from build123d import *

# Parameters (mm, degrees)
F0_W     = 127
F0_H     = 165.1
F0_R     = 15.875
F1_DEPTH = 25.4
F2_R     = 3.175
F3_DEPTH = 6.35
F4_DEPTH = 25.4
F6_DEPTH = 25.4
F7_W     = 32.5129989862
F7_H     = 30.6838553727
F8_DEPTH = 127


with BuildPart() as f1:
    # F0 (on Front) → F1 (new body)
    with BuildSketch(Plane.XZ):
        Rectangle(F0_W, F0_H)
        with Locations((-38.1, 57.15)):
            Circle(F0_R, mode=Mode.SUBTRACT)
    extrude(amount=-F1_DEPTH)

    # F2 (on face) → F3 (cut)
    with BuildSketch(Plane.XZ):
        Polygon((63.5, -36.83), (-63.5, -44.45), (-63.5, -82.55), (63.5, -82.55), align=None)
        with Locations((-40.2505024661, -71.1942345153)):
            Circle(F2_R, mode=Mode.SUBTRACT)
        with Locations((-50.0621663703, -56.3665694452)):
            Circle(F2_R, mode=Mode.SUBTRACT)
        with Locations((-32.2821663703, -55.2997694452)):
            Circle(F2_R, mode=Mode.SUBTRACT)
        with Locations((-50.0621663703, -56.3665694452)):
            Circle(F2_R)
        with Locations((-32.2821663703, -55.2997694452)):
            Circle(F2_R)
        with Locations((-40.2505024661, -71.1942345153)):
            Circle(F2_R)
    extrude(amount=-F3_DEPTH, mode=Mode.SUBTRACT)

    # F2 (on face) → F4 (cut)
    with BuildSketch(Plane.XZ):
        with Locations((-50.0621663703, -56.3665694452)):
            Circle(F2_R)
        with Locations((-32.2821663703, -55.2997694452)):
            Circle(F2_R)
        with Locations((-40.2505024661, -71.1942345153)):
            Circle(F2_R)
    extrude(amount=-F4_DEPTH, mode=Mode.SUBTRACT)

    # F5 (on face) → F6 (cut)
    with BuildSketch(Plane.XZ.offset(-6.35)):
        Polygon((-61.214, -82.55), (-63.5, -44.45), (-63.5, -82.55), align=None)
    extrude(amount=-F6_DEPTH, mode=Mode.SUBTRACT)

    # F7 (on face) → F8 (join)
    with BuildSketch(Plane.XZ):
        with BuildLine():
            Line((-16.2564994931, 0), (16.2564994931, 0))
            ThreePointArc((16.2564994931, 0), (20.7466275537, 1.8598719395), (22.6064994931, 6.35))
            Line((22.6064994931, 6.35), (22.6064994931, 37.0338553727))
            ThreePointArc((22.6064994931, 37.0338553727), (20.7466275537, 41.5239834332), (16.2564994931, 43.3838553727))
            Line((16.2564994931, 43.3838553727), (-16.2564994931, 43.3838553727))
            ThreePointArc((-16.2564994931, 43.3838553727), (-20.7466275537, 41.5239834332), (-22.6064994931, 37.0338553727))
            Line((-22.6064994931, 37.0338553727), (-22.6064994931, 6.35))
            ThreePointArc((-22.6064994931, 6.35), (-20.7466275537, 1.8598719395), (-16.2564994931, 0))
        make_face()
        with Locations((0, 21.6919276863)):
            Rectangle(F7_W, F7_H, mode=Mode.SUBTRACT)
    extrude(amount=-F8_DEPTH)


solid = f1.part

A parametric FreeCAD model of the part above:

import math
import FreeCAD as App
import Part
import Sketcher

V = App.Vector
Q = App.Units.Quantity

doc = App.newDocument("Part")
body = doc.addObject("PartDesign::Body", "Body")

# Sketch on XZ plane
sketch1 = body.newObject("Sketcher::SketchObject", "Sketch")
sketch1.AttachmentSupport = (doc.getObject("XZ_Plane"), [""])
sketch1.MapMode = "FlatFace"
sketch1.addGeometry(Part.LineSegment(V(-63.5, 82.55, 0), V(-63.5, -82.55, 0)), False)
sketch1.addGeometry(Part.LineSegment(V(-63.5, -82.55, 0), V(63.5, -82.55, 0)), False)
sketch1.addGeometry(Part.LineSegment(V(63.5, -82.55, 0), V(63.5, 82.55, 0)), False)
sketch1.addGeometry(Part.LineSegment(V(63.5, 82.55, 0), V(-63.5, 82.55, 0)), False)
sketch1.addGeometry(Part.Circle(V(-38.1, 57.15, 0), V(0, 0, 1), 15.875), False)
sketch1.addConstraint(Sketcher.Constraint("Coincident", 0, 2, 1, 1))
sketch1.addConstraint(Sketcher.Constraint("Coincident", 1, 2, 2, 1))
sketch1.addConstraint(Sketcher.Constraint("Coincident", 2, 2, 3, 1))
sketch1.addConstraint(Sketcher.Constraint("Coincident", 3, 2, 0, 1))
sketch1.addConstraint(Sketcher.Constraint("Vertical", 0))
sketch1.addConstraint(Sketcher.Constraint("Horizontal", 1))
sketch1.addConstraint(Sketcher.Constraint("Vertical", 2))
sketch1.addConstraint(Sketcher.Constraint("Horizontal", 3))
sketch1.addConstraint(Sketcher.Constraint("Symmetric", 0, 2, 2, 2, -1, 1))
sketch1.addConstraint(Sketcher.Constraint("Diameter", 4, Q("1.25 in")))
sketch1.addConstraint(Sketcher.Constraint("DistanceX", 1, 1, 1, 2, Q("5 in")))
sketch1.addConstraint(Sketcher.Constraint("DistanceY", 0, 2, 0, 1, Q("6.5 in")))
sketch1.addConstraint(Sketcher.Constraint("DistanceX", 0, 2, 4, 3, Q("1 in")))
sketch1.addConstraint(Sketcher.Constraint("DistanceY", 4, 3, 2, 2, Q("1 in")))
pad1 = body.newObject("PartDesign::Pad", "Pad")
pad1.Profile = sketch1
pad1.Length = Q("1 in")
pad1.Reversed = True

# Sketch on XZ plane
sketch2 = body.newObject("Sketcher::SketchObject", "Sketch001")
sketch2.AttachmentSupport = (doc.getObject("XZ_Plane"), [""])
sketch2.MapMode = "FlatFace"
sketch2.addGeometry(Part.LineSegment(V(63.5, -36.83, 0), V(-63.5, -44.45, 0)), False)
sketch2.addGeometry(Part.LineSegment(V(-63.5, -44.45, 0), V(-63.5, -82.55, 0)), False)
sketch2.addGeometry(Part.LineSegment(V(-63.5, -82.55, 0), V(63.5, -82.55, 0)), False)
sketch2.addGeometry(Part.LineSegment(V(63.5, -82.55, 0), V(63.5, -36.83, 0)), False)
sketch2.addConstraint(Sketcher.Constraint("Coincident", 0, 2, 1, 1))
sketch2.addConstraint(Sketcher.Constraint("Coincident", 1, 2, 2, 1))
sketch2.addConstraint(Sketcher.Constraint("Coincident", 2, 2, 3, 1))
sketch2.addConstraint(Sketcher.Constraint("Coincident", 3, 2, 0, 1))
sketch2.addConstraint(Sketcher.Constraint("Vertical", 1))
sketch2.addConstraint(Sketcher.Constraint("Horizontal", 2))
sketch2.addConstraint(Sketcher.Constraint("Vertical", 3))
sketch2.addConstraint(Sketcher.Constraint("DistanceX", 2, 1, 2, 2, Q("5 in")))
sketch2.addConstraint(Sketcher.Constraint("DistanceY", 1, 2, 1, 1, Q("1.5 in")))
sketch2.addConstraint(Sketcher.Constraint("DistanceY", 3, 1, 3, 2, Q("1.8 in")))
sketch2.addConstraint(Sketcher.Constraint("DistanceX", 0, 2, -1, 1, Q("2.5 in")))
sketch2.addConstraint(Sketcher.Constraint("DistanceY", 0, 2, -1, 1, Q("1.75 in")))
pocket1 = body.newObject("PartDesign::Pocket", "Pocket")
pocket1.Profile = sketch2
pocket1.Length = Q("0.25 in")

# Sketch on XZ plane
sketch3 = body.newObject("Sketcher::SketchObject", "Sketch002")
sketch3.AttachmentSupport = (doc.getObject("XZ_Plane"), [""])
sketch3.MapMode = "FlatFace"
sketch3.addGeometry(Part.Circle(V(-50.062166, -56.366569, 0), V(0, 0, 1), 3.175), False)
sketch3.addGeometry(Part.Circle(V(-32.282166, -55.299769, 0), V(0, 0, 1), 3.175), False)
sketch3.addGeometry(Part.Circle(V(-40.250502, -71.194235, 0), V(0, 0, 1), 3.175), False)
sketch3.addConstraint(Sketcher.Constraint("Equal", 0, 1))
sketch3.addConstraint(Sketcher.Constraint("Equal", 1, 2))
sketch3.addConstraint(Sketcher.Constraint("Diameter", 0, Q("0.25 in")))
sketch3.addConstraint(Sketcher.Constraint("DistanceX", 0, 3, 1, 3, Q("0.7 in")))
sketch3.addConstraint(Sketcher.Constraint("DistanceY", 0, 3, 1, 3, Q("0.042 in")))
sketch3.addConstraint(Sketcher.Constraint("DistanceY", 0, 3, -1, 1, 56.366569))
sketch3.addConstraint(Sketcher.Constraint("DistanceX", 0, 3, -1, 1, 50.062166))
sketch3.addConstraint(Sketcher.Constraint("DistanceX", 2, 3, -1, 1, 40.250502))
sketch3.addConstraint(Sketcher.Constraint("DistanceY", 2, 3, -1, 1, 71.194235))
pocket2 = body.newObject("PartDesign::Pocket", "Pocket001")
pocket2.Profile = sketch3
pocket2.Length = Q("1 in")

# Sketch on XZ plane
sketch4 = body.newObject("Sketcher::SketchObject", "Sketch003")
sketch4.AttachmentSupport = (doc.getObject("XZ_Plane"), [""])
sketch4.MapMode = "FlatFace"
sketch4.AttachmentOffset = App.Placement(V(0, 0, -0.25 * 25.4), App.Rotation())
sketch4.addGeometry(Part.LineSegment(V(-61.214, -82.55, 0), V(-63.5, -44.45, 0)), False)
sketch4.addGeometry(Part.LineSegment(V(-63.5, -44.45, 0), V(-63.5, -82.55, 0)), False)
sketch4.addGeometry(Part.LineSegment(V(-63.5, -82.55, 0), V(-61.214, -82.55, 0)), False)
sketch4.addConstraint(Sketcher.Constraint("Coincident", 0, 2, 1, 1))
sketch4.addConstraint(Sketcher.Constraint("Coincident", 1, 2, 2, 1))
sketch4.addConstraint(Sketcher.Constraint("Coincident", 2, 2, 0, 1))
sketch4.addConstraint(Sketcher.Constraint("Vertical", 1))
sketch4.addConstraint(Sketcher.Constraint("Horizontal", 2))
sketch4.addConstraint(Sketcher.Constraint("DistanceY", 1, 2, 1, 1, Q("1.5 in")))
sketch4.addConstraint(Sketcher.Constraint("DistanceX", 2, 1, 2, 2, Q("0.09 in")))
sketch4.addConstraint(Sketcher.Constraint("DistanceX", 0, 2, -1, 1, Q("2.5 in")))
sketch4.addConstraint(Sketcher.Constraint("DistanceY", 0, 2, -1, 1, Q("1.75 in")))
pocket3 = body.newObject("PartDesign::Pocket", "Pocket002")
pocket3.Profile = sketch4
pocket3.Length = Q("1 in")

# Sketch on XZ plane
sketch5 = body.newObject("Sketcher::SketchObject", "Sketch004")
sketch5.AttachmentSupport = (doc.getObject("XZ_Plane"), [""])
sketch5.MapMode = "FlatFace"
sketch5.addGeometry(Part.LineSegment(V(-16.256499, 0, 0), V(16.256499, 0, 0)), False)
sketch5.addGeometry(Part.ArcOfCircle(Part.Circle(V(16.256499, 6.35, 0), V(0, 0, 1), 6.35), math.radians(-90), math.radians(0)), False)
sketch5.addGeometry(Part.LineSegment(V(22.606499, 6.35, 0), V(22.606499, 37.033855, 0)), False)
sketch5.addGeometry(Part.ArcOfCircle(Part.Circle(V(16.256499, 37.033855, 0), V(0, 0, 1), 6.35), math.radians(0), math.radians(90)), False)
sketch5.addGeometry(Part.LineSegment(V(16.256499, 43.383855, 0), V(-16.256499, 43.383855, 0)), False)
sketch5.addGeometry(Part.ArcOfCircle(Part.Circle(V(-16.256499, 37.033855, 0), V(0, 0, 1), 6.35), math.radians(90), math.radians(180)), False)
sketch5.addGeometry(Part.LineSegment(V(-22.606499, 37.033855, 0), V(-22.606499, 6.35, 0)), False)
sketch5.addGeometry(Part.ArcOfCircle(Part.Circle(V(-16.256499, 6.35, 0), V(0, 0, 1), 6.35), math.radians(180), math.radians(270)), False)
sketch5.addGeometry(Part.LineSegment(V(16.256499, 6.35, 0), V(-16.256499, 6.35, 0)), False)
sketch5.addGeometry(Part.LineSegment(V(-16.256499, 6.35, 0), V(-16.256499, 37.033855, 0)), False)
sketch5.addGeometry(Part.LineSegment(V(-16.256499, 37.033855, 0), V(16.256499, 37.033855, 0)), False)
sketch5.addGeometry(Part.LineSegment(V(16.256499, 37.033855, 0), V(16.256499, 6.35, 0)), False)
sketch5.addConstraint(Sketcher.Constraint("Tangent", 0, 2, 1, 1))
sketch5.addConstraint(Sketcher.Constraint("Tangent", 1, 2, 2, 1))
sketch5.addConstraint(Sketcher.Constraint("Tangent", 2, 2, 3, 1))
sketch5.addConstraint(Sketcher.Constraint("Tangent", 3, 2, 4, 1))
sketch5.addConstraint(Sketcher.Constraint("Tangent", 4, 2, 5, 1))
sketch5.addConstraint(Sketcher.Constraint("Tangent", 5, 2, 6, 1))
sketch5.addConstraint(Sketcher.Constraint("Tangent", 6, 2, 7, 1))
sketch5.addConstraint(Sketcher.Constraint("Tangent", 7, 2, 0, 1))
sketch5.addConstraint(Sketcher.Constraint("Coincident", 8, 2, 9, 1))
sketch5.addConstraint(Sketcher.Constraint("Coincident", 9, 2, 10, 1))
sketch5.addConstraint(Sketcher.Constraint("Coincident", 10, 2, 11, 1))
sketch5.addConstraint(Sketcher.Constraint("Coincident", 11, 2, 8, 1))
sketch5.addConstraint(Sketcher.Constraint("Horizontal", 0))
sketch5.addConstraint(Sketcher.Constraint("Vertical", 2))
sketch5.addConstraint(Sketcher.Constraint("Horizontal", 4))
sketch5.addConstraint(Sketcher.Constraint("Vertical", 6))
sketch5.addConstraint(Sketcher.Constraint("Horizontal", 8))
sketch5.addConstraint(Sketcher.Constraint("Vertical", 9))
sketch5.addConstraint(Sketcher.Constraint("Horizontal", 10))
sketch5.addConstraint(Sketcher.Constraint("Vertical", 11))
sketch5.addConstraint(Sketcher.Constraint("Coincident", 8, 2, 7, 3))
sketch5.addConstraint(Sketcher.Constraint("Coincident", 9, 2, 5, 3))
sketch5.addConstraint(Sketcher.Constraint("Coincident", 10, 2, 3, 3))
sketch5.addConstraint(Sketcher.Constraint("Equal", 1, 3))
sketch5.addConstraint(Sketcher.Constraint("Symmetric", 0, 2, 7, 2, -1, 1))
sketch5.addConstraint(Sketcher.Constraint("Radius", 1, Q("0.25 in")))
sketch5.addConstraint(Sketcher.Constraint("DistanceX", 0, 1, 0, 2, 32.512999))
sketch5.addConstraint(Sketcher.Constraint("DistanceY", 2, 1, 2, 2, 30.683855))
pad2 = body.newObject("PartDesign::Pad", "Pad001")
pad2.Profile = sketch5
pad2.Length = Q("5 in")
pad2.Reversed = True

doc.recompute()
